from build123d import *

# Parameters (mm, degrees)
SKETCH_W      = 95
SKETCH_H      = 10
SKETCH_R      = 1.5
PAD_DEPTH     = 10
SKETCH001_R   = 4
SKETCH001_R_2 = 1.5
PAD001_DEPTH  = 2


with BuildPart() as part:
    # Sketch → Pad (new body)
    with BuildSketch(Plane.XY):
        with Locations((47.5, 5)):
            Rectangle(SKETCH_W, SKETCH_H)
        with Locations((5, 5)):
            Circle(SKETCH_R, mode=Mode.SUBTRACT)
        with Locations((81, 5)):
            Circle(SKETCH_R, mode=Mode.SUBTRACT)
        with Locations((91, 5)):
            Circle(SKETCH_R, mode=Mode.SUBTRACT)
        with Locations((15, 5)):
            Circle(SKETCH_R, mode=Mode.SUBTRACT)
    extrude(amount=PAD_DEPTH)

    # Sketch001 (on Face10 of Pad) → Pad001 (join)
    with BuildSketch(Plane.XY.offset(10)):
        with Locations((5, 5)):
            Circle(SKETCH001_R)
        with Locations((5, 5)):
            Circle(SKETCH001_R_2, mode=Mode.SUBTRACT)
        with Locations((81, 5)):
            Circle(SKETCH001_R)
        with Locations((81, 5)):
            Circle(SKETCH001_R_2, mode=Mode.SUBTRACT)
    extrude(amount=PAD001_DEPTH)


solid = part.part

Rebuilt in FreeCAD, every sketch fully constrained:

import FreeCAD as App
import Part
import Sketcher


def add_polygon(sketch, points):
    """Adds a closed chain of lines whose ends are joined by coincident constraints."""
    first, n = sketch.GeometryCount, len(points)
    for a, b in zip(points, points[1:] + points[:1]):
        sketch.addGeometry(Part.LineSegment(App.Vector(*a, 0), App.Vector(*b, 0)), False)
    for i in range(n):
        sketch.addConstraint(Sketcher.Constraint("Coincident", first + i, 2, first + (i + 1) % n, 1))

doc = App.newDocument("Part")
body = doc.addObject("PartDesign::Body", "Body")

# Sketch on XY plane
sketch1 = body.newObject("Sketcher::SketchObject", "Sketch")
sketch1.AttachmentSupport = (doc.getObject("XY_Plane"), [""])
sketch1.MapMode = "FlatFace"
add_polygon(sketch1, [(0, 10), (0, 0), (95, 0), (95, 10)])  # lines 0-3
sketch1.addGeometry(Part.Circle(App.Vector(5, 5, 0), App.Vector(0, 0, 1), 1.5), False)  # 4
sketch1.addGeometry(Part.Circle(App.Vector(15, 5, 0), App.Vector(0, 0, 1), 1.5), False)  # 5
sketch1.addGeometry(Part.Circle(App.Vector(81, 5, 0), App.Vector(0, 0, 1), 1.5), False)  # 6
sketch1.addGeometry(Part.Circle(App.Vector(91, 5, 0), App.Vector(0, 0, 1), 1.5), False)  # 7
sketch1.addConstraint(Sketcher.Constraint("Vertical", 0))
sketch1.addConstraint(Sketcher.Constraint("Horizontal", 1))
sketch1.addConstraint(Sketcher.Constraint("Vertical", 2))
sketch1.addConstraint(Sketcher.Constraint("Horizontal", 3))
sketch1.addConstraint(Sketcher.Constraint("Coincident", 0, 2, -1, 1))
sketch1.addConstraint(Sketcher.Constraint("Equal", 4, 5))
sketch1.addConstraint(Sketcher.Constraint("Equal", 5, 6))
sketch1.addConstraint(Sketcher.Constraint("Equal", 6, 7))
sketch1.addConstraint(Sketcher.Constraint("Horizontal", 4, 3, 5, 3))
sketch1.addConstraint(Sketcher.Constraint("Horizontal", 5, 3, 6, 3))
sketch1.addConstraint(Sketcher.Constraint("Horizontal", 6, 3, 7, 3))
sketch1.addConstraint(Sketcher.Constraint("Diameter", 4, 3.0))
sketch1.addConstraint(Sketcher.Constraint("DistanceX", 1, 1, 1, 2, 95.0))
sketch1.addConstraint(Sketcher.Constraint("DistanceY", 0, 2, 0, 1, 10.0))
sketch1.addConstraint(Sketcher.Constraint("DistanceX", -1, 1, 4, 3, 5.0))
sketch1.addConstraint(Sketcher.Constraint("DistanceY", -1, 1, 4, 3, 5.0))
sketch1.addConstraint(Sketcher.Constraint("DistanceX", -1, 1, 5, 3, 15.0))
sketch1.addConstraint(Sketcher.Constraint("DistanceX", -1, 1, 6, 3, 81.0))
sketch1.addConstraint(Sketcher.Constraint("DistanceX", -1, 1, 7, 3, 91.0))
pad1 = body.newObject("PartDesign::Pad", "Pad")
pad1.Profile = sketch1
pad1.Length = 10

# Sketch on XY plane
sketch2 = body.newObject("Sketcher::SketchObject", "Sketch001")
sketch2.AttachmentSupport = (doc.getObject("XY_Plane"), [""])
sketch2.MapMode = "FlatFace"
sketch2.AttachmentOffset = App.Placement(App.Vector(0, 0, 10), App.Rotation())
sketch2.addGeometry(Part.Circle(App.Vector(5, 5, 0), App.Vector(0, 0, 1), 4), False)
sketch2.addGeometry(Part.Circle(App.Vector(5, 5, 0), App.Vector(0, 0, 1), 1.5), False)
sketch2.addGeometry(Part.Circle(App.Vector(81, 5, 0), App.Vector(0, 0, 1), 4), False)
sketch2.addGeometry(Part.Circle(App.Vector(81, 5, 0), App.Vector(0, 0, 1), 1.5), False)
sketch2.addConstraint(Sketcher.Constraint("Coincident", 1, 3, 0, 3))
sketch2.addConstraint(Sketcher.Constraint("Coincident", 3, 3, 2, 3))
sketch2.addConstraint(Sketcher.Constraint("Equal", 0, 2))
sketch2.addConstraint(Sketcher.Constraint("Equal", 1, 3))
sketch2.addConstraint(Sketcher.Constraint("Horizontal", 1, 3, 2, 3))
sketch2.addConstraint(Sketcher.Constraint("Diameter", 0, 8.0))
sketch2.addConstraint(Sketcher.Constraint("Diameter", 1, 3.0))
sketch2.addConstraint(Sketcher.Constraint("DistanceX", -1, 1, 0, 3, 5.0))
sketch2.addConstraint(Sketcher.Constraint("DistanceY", -1, 1, 0, 3, 5.0))
sketch2.addConstraint(Sketcher.Constraint("DistanceX", -1, 1, 2, 3, 81.0))
pad2 = body.newObject("PartDesign::Pad", "Pad001")
pad2.Profile = sketch2
pad2.Length = 2

doc.recompute()
